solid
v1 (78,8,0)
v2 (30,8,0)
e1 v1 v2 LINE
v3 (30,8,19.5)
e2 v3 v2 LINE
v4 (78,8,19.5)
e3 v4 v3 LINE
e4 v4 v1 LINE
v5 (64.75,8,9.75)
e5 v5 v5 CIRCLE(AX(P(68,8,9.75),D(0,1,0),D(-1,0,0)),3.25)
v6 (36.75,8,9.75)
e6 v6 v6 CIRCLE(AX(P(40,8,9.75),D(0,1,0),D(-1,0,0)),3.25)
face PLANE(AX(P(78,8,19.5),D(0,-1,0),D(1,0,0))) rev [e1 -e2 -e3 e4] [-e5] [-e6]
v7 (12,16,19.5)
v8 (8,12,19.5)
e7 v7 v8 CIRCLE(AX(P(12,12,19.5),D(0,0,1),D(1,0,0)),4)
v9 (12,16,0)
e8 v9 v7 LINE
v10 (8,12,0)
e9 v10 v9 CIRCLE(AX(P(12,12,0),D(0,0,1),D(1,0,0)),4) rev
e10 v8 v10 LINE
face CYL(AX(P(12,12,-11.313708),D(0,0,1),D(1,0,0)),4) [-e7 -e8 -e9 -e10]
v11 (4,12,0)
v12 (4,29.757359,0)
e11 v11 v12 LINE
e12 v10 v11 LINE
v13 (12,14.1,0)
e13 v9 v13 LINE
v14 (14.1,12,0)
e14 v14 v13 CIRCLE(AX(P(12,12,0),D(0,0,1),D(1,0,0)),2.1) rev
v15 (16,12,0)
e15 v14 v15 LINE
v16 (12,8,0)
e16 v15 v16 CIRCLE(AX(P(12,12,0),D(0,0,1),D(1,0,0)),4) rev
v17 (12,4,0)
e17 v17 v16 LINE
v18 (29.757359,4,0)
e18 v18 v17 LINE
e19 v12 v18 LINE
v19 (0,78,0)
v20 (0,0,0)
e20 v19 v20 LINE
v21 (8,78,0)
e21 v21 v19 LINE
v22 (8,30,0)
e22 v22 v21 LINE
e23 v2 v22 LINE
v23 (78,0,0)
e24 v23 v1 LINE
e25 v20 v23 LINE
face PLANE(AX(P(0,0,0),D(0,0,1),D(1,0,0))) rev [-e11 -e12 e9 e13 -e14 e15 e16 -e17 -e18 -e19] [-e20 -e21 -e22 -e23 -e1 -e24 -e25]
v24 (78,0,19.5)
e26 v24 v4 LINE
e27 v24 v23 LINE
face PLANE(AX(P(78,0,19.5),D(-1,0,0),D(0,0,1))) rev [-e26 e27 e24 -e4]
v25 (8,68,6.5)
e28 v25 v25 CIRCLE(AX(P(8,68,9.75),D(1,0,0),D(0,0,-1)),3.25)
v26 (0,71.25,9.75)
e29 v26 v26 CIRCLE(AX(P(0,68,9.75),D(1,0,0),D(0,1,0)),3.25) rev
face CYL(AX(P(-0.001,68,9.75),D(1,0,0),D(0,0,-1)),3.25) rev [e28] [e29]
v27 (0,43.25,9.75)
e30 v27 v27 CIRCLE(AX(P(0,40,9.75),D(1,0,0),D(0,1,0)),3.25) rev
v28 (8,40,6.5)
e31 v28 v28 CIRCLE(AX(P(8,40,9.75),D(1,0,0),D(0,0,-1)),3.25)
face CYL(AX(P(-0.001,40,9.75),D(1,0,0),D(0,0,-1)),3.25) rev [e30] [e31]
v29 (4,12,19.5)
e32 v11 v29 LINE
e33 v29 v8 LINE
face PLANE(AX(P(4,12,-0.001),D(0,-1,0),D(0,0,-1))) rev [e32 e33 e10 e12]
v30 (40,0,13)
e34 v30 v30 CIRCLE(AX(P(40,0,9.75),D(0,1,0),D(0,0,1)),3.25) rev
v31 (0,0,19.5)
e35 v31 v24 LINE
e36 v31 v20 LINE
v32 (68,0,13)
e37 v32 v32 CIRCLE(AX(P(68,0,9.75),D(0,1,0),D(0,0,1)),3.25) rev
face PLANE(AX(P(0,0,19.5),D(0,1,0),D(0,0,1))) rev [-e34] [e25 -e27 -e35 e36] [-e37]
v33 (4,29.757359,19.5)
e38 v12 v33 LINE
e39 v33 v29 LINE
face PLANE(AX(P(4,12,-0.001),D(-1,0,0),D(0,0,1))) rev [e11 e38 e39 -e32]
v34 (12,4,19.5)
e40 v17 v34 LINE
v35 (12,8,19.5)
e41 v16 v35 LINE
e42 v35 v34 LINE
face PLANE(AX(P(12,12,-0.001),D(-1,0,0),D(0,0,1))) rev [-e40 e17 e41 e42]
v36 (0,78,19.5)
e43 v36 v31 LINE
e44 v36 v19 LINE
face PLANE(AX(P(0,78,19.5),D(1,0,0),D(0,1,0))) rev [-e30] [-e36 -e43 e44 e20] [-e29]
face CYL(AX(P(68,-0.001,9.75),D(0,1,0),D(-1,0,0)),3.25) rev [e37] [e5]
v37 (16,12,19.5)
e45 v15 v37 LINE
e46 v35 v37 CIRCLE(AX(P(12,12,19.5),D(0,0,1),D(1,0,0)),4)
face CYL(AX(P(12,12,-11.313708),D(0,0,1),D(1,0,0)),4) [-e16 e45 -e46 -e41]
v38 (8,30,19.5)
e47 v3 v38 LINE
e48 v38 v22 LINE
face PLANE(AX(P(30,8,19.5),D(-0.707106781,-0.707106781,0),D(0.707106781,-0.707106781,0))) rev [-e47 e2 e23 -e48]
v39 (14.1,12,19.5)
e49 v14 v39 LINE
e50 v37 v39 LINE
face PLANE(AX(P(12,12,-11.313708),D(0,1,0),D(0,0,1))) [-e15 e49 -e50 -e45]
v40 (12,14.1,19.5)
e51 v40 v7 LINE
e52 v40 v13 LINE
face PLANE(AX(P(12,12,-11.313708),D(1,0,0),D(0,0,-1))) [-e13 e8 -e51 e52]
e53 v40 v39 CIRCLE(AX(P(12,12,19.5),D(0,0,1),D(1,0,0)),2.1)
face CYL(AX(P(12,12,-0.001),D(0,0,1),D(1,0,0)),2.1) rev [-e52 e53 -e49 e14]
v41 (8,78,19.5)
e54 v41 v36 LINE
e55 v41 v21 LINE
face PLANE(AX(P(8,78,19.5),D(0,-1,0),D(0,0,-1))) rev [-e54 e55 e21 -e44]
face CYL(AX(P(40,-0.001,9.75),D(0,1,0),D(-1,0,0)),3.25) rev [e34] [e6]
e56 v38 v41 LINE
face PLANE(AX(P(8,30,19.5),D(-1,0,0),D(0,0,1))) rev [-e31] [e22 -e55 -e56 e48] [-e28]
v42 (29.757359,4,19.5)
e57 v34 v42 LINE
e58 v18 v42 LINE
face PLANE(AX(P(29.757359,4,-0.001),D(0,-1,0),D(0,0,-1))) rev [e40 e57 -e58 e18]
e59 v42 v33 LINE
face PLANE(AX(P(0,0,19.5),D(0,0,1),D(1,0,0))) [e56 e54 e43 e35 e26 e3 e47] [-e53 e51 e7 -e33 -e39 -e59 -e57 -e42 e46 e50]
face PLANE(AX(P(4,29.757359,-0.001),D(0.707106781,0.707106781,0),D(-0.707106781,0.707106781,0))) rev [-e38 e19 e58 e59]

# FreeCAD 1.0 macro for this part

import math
import FreeCAD as App
import Part
import Sketcher

V = App.Vector


def add_polygon(sketch, points):
    """Adds a closed chain of lines whose ends are joined by coincident constraints."""
    first, n = sketch.GeometryCount, len(points)
    for a, b in zip(points, points[1:] + points[:1]):
        sketch.addGeometry(Part.LineSegment(App.Vector(*a, 0), App.Vector(*b, 0)), False)
    for i in range(n):
        sketch.addConstraint(Sketcher.Constraint("Coincident", first + i, 2, first + (i + 1) % n, 1))

doc = App.newDocument("Part")
body = doc.addObject("PartDesign::Body", "Body")

sketch1 = body.newObject("Sketcher::SketchObject", "Sketch")
sketch1.AttachmentSupport = (doc.getObject("XY_Plane"), [""])
sketch1.MapMode = "FlatFace"
add_polygon(sketch1, [(0, 0), (78, 0), (78, 8), (30, 8), (8, 30), (8, 78), (0, 78)])
sketch1.addConstraint([
    Sketcher.Constraint("Horizontal", 0),
    Sketcher.Constraint("Vertical", 1),
    Sketcher.Constraint("Horizontal", 2),
    Sketcher.Constraint("Vertical", 4),
    Sketcher.Constraint("Horizontal", 5),
    Sketcher.Constraint("Vertical", 6),
    Sketcher.Constraint("Coincident", 6, 2, -1, 1),
    Sketcher.Constraint("Equal", 5, 1),
    Sketcher.Constraint("Equal", 2, 4),
    Sketcher.Constraint("Equal", 0, 6),
    Sketcher.Constraint("DistanceX", 0, 1, 0, 2, 78.0),
    Sketcher.Constraint("DistanceX", 2, 2, 2, 1, 48.0),
    Sketcher.Constraint("DistanceX", 5, 2, 5, 1, 8.0),
])
pad1 = body.newObject("PartDesign::Pad", "Pad")
pad1.Profile = sketch1
pad1.Length = 19.5

sketch2 = body.newObject("Sketcher::SketchObject", "Sketch001")
sketch2.AttachmentSupport = (doc.getObject("XY_Plane"), [""])
sketch2.MapMode = "FlatFace"
sketch2.AttachmentOffset = App.Placement(V(0, 0, 19.5), App.Rotation())
add_polygon(sketch2, [(29.757359, 4), (4, 29.757359), (4, 12), (12, 12), (12, 4)])
sketch2.addConstraint([
    Sketcher.Constraint("Vertical", 1),
    Sketcher.Constraint("Horizontal", 2),
    Sketcher.Constraint("Vertical", 3),
    Sketcher.Constraint("Horizontal", 4),
    Sketcher.Constraint("Equal", 4, 1),
    Sketcher.Constraint("Equal", 2, 3),
    Sketcher.Constraint("DistanceX", 2, 1, 2, 2, 8.0),
    Sketcher.Constraint("DistanceX", -1, 1, 0, 2, 4.0),
    Sketcher.Constraint("DistanceY", -1, 1, 1, 2, 12.0),
    Sketcher.Constraint("DistanceX", 4, 1, 4, 2, 17.757359),
])
pocket1 = body.newObject("PartDesign::Pocket", "Pocket")
pocket1.Profile = sketch2
pocket1.Type = "UpToFirst"

sketch3 = body.newObject("Sketcher::SketchObject", "Sketch002")
sketch3.AttachmentSupport = (doc.getObject("XY_Plane"), [""])
sketch3.MapMode = "FlatFace"
sketch3.AttachmentOffset = App.Placement(V(0, 0, 19.5), App.Rotation())
sketch3.addGeometry([
    Part.LineSegment(V(12, 12, 0), V(12, 16, 0)),
    Part.ArcOfCircle(Part.Circle(V(12, 12, 0), V(0, 0, 1), 4), math.radians(90), math.radians(360)),
    Part.LineSegment(V(16, 12, 0), V(12, 12, 0)),
], False)
sketch3.addConstraint([
    Sketcher.Constraint("Coincident", 0, 2, 1, 1),
    Sketcher.Constraint("Coincident", 1, 2, 2, 1),
    Sketcher.Constraint("Coincident", 2, 2, 0, 1),
    Sketcher.Constraint("Vertical", 0),
    Sketcher.Constraint("Horizontal", 2),
    Sketcher.Constraint("Coincident", 2, 2, 1, 3),
    Sketcher.Constraint("Radius", 1, 4.0),
    Sketcher.Constraint("DistanceX", -1, 1, 1, 3, 12.0),
    Sketcher.Constraint("DistanceY", -1, 1, 1, 3, 12.0),
])
pad2 = body.newObject("PartDesign::Pad", "Pad001")
pad2.Profile = sketch3
pad2.Length = 19.5
pad2.Reversed = True

sketch4 = body.newObject("Sketcher::SketchObject", "Sketch003")
sketch4.AttachmentSupport = (doc.getObject("XY_Plane"), [""])
sketch4.MapMode = "FlatFace"
sketch4.AttachmentOffset = App.Placement(V(0, 0, 19.5), App.Rotation())
sketch4.addGeometry(Part.Circle(V(12, 12, 0), V(0, 0, 1), 2.1), False)
sketch4.addConstraint([
    Sketcher.Constraint("Diameter", 0, 4.2),
    Sketcher.Constraint("DistanceX", -1, 1, 0, 3, 12.0),
    Sketcher.Constraint("DistanceY", -1, 1, 0, 3, 12.0),
])
pocket2 = body.newObject("PartDesign::Pocket", "Pocket001")
pocket2.Profile = sketch4
pocket2.Type = "UpToFirst"

sketch5 = body.newObject("Sketcher::SketchObject", "Sketch004")
sketch5.AttachmentSupport = (doc.getObject("XZ_Plane"), [""])
sketch5.MapMode = "FlatFace"
sketch5.AttachmentOffset = App.Placement(V(0, 0, -8), App.Rotation())
sketch5.addGeometry(Part.Circle(V(40, 9.75, 0), V(0, 0, 1), 3.25), False)
sketch5.addConstraint([
    Sketcher.Constraint("Diameter", 0, 6.5),
    Sketcher.Constraint("DistanceX", -1, 1, 0, 3, 40.0),
    Sketcher.Constraint("DistanceY", -1, 1, 0, 3, 9.75),
])
pocket3 = body.newObject("PartDesign::Pocket", "Pocket002")
pocket3.Profile = sketch5
pocket3.Type = "UpToFirst"
pocket3.Reversed = True

sketch6 = body.newObject("Sketcher::SketchObject", "Sketch005")
sketch6.AttachmentSupport = (doc.getObject("XZ_Plane"), [""])
sketch6.MapMode = "FlatFace"
sketch6.AttachmentOffset = App.Placement(V(0, 0, -8), App.Rotation())
sketch6.addGeometry(Part.Circle(V(68, 9.75, 0), V(0, 0, 1), 3.25), False)
sketch6.addConstraint([
    Sketcher.Constraint("Diameter", 0, 6.5),
    Sketcher.Constraint("DistanceX", -1, 1, 0, 3, 68.0),
    Sketcher.Constraint("DistanceY", -1, 1, 0, 3, 9.75),
])
pocket4 = body.newObject("PartDesign::Pocket", "Pocket003")
pocket4.Profile = sketch6
pocket4.Type = "UpToFirst"
pocket4.Reversed = True

sketch7 = body.newObject("Sketcher::SketchObject", "Sketch006")
sketch7.AttachmentSupport = (doc.getObject("YZ_Plane"), [""])
sketch7.MapMode = "FlatFace"
sketch7.AttachmentOffset = App.Placement(V(0, 0, 8), App.Rotation())
sketch7.addGeometry(Part.Circle(V(68, 9.75, 0), V(0, 0, 1), 3.25), False)
sketch7.addConstraint([
    Sketcher.Constraint("Diameter", 0, 6.5),
    Sketcher.Constraint("DistanceX", -1, 1, 0, 3, 68.0),
    Sketcher.Constraint("DistanceY", -1, 1, 0, 3, 9.75),
])
pocket5 = body.newObject("PartDesign::Pocket", "Pocket004")
pocket5.Profile = sketch7
pocket5.Type = "UpToFirst"

sketch8 = body.newObject("Sketcher::SketchObject", "Sketch007")
sketch8.AttachmentSupport = (doc.getObject("YZ_Plane"), [""])
sketch8.MapMode = "FlatFace"
sketch8.AttachmentOffset = App.Placement(V(0, 0, 8), App.Rotation())
sketch8.addGeometry(Part.Circle(V(40, 9.75, 0), V(0, 0, 1), 3.25), False)
sketch8.addConstraint([
    Sketcher.Constraint("Diameter", 0, 6.5),
    Sketcher.Constraint("DistanceX", -1, 1, 0, 3, 40.0),
    Sketcher.Constraint("DistanceY", -1, 1, 0, 3, 9.75),
])
pocket6 = body.newObject("PartDesign::Pocket", "Pocket005")
pocket6.Profile = sketch8
pocket6.Type = "UpToFirst"

doc.recompute()
